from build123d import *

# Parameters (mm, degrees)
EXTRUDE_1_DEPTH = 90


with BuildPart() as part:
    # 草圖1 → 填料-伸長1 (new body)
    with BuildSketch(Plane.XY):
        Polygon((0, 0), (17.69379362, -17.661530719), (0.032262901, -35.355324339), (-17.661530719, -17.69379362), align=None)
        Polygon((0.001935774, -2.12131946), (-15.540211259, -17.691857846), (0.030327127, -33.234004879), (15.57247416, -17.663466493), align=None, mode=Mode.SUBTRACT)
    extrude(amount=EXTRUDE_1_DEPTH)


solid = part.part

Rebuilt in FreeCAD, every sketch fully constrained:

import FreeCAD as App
import Part
import Sketcher

doc = App.newDocument("Part")
params = doc.addObject("Spreadsheet::Sheet", "Params")
for row, (alias, value) in enumerate([
    ("sketch1_length", "25 mm"),
    ("sketch1_length2", "22 mm"),
    ("pad1_length", "90 mm"),
], start=1):
    params.set(f"A{row}", alias)
    params.set(f"B{row}", "=" + value)
    params.setAlias(f"B{row}", alias)

body = doc.addObject("PartDesign::Body", "Body")

sketch1 = body.newObject("Sketcher::SketchObject", "Sketch")
sketch1.AttachmentSupport = (doc.getObject("XY_Plane"), [""])
sketch1.MapMode = "FlatFace"
sketch1.addGeometry([
    Part.LineSegment(App.Vector(18, -18, 0), App.Vector(0, 0, 0)),
    Part.LineSegment(App.Vector(0, 0, 0), App.Vector(-18, -18, 0)),
    Part.LineSegment(App.Vector(-18, -18, 0), App.Vector(0, -35, 0)),
    Part.LineSegment(App.Vector(0, -35, 0), App.Vector(18, -18, 0)),
    Part.LineSegment(App.Vector(0, -2, 0), App.Vector(16, -18, 0)),
    Part.LineSegment(App.Vector(16, -18, 0), App.Vector(0, -33, 0)),
    Part.LineSegment(App.Vector(0, -33, 0), App.Vector(-16, -18, 0)),
    Part.LineSegment(App.Vector(-16, -18, 0), App.Vector(0, -2, 0)),
], False)
sketch1.addConstraint([
    Sketcher.Constraint("Coincident", 0, 2, 1, 1),
    Sketcher.Constraint("Coincident", 1, 2, 2, 1),
    Sketcher.Constraint("Coincident", 2, 2, 3, 1),
    Sketcher.Constraint("Coincident", 3, 2, 0, 1),
    Sketcher.Constraint("Coincident", 4, 2, 5, 1),
    Sketcher.Constraint("Coincident", 5, 2, 6, 1),
    Sketcher.Constraint("Coincident", 6, 2, 7, 1),
    Sketcher.Constraint("Coincident", 7, 2, 4, 1),
    Sketcher.Constraint("Coincident", 0, 2, -1, 1),
    Sketcher.Constraint("Perpendicular", 0, 1),
    Sketcher.Constraint("Perpendicular", 1, 2),
    Sketcher.Constraint("Perpendicular", 2, 3),
    Sketcher.Constraint("Perpendicular", 3, 4),
    Sketcher.Constraint("Perpendicular", 4, 5),
    Sketcher.Constraint("Perpendicular", 5, 6),
    Sketcher.Constraint("Perpendicular", 6, 7),
    Sketcher.Constraint("Equal", 0, 1),
    Sketcher.Constraint("Equal", 4, 5),
    Sketcher.Constraint("Distance", 0, 25.0),
    Sketcher.Constraint("Distance", 4, 22.0),
    Sketcher.Constraint("DistanceX", 1, 2, -1, 1, 17.661531),
    Sketcher.Constraint("DistanceX", 6, 2, -1, 1, 15.540211),
    Sketcher.Constraint("DistanceY", 7, 2, -1, 1, 2.121319),
])
sketch1.setExpression("Constraints[18]", "Params.sketch1_length")
sketch1.setExpression("Constraints[19]", "Params.sketch1_length2")
pad1 = body.newObject("PartDesign::Pad", "Pad")
pad1.Profile = sketch1
pad1.setExpression("Length", "Params.pad1_length")

doc.recompute()
